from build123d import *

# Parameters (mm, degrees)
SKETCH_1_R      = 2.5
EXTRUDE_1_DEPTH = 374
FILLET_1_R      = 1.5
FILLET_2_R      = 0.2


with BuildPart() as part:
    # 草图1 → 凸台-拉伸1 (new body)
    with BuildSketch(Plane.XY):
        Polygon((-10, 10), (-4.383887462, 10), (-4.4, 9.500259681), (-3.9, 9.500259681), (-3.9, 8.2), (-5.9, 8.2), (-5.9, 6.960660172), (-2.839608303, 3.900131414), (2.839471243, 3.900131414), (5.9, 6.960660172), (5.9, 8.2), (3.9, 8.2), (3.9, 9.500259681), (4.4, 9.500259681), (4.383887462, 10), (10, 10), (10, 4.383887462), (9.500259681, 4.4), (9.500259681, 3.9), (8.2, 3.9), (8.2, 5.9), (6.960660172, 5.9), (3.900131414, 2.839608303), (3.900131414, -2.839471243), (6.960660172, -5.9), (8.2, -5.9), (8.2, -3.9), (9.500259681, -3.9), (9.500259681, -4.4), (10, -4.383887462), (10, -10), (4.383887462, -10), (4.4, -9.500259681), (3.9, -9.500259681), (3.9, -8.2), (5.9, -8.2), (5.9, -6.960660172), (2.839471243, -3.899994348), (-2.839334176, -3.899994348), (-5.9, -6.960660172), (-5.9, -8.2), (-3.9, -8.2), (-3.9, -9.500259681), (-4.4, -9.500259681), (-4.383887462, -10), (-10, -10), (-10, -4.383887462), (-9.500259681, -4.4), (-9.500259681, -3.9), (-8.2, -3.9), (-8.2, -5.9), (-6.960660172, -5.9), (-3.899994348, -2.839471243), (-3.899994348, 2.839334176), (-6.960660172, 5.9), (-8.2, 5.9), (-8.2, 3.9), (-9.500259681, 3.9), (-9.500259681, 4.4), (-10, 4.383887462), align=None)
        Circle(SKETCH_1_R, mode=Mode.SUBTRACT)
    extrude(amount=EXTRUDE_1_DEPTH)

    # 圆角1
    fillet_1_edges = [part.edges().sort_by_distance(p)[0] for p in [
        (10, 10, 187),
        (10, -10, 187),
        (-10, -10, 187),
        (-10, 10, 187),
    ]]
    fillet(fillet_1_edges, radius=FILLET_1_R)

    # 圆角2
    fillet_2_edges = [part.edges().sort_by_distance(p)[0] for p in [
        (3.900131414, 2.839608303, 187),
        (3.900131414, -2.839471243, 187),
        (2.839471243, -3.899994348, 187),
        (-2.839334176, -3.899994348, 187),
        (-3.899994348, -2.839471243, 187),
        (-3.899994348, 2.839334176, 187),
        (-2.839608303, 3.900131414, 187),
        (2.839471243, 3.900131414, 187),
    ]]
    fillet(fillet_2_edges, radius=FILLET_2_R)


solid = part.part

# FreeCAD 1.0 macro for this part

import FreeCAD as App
import Part
import Sketcher
Q = App.Units.Quantity


def edges_at(feature, points):
    """Names of the edges that pass closest to the given points."""
    edges = feature.Shape.Edges
    near = lambda p: min(range(len(edges)), key=lambda i: edges[i].distToShape(Part.Vertex(*p))[0])
    return sorted({f"Edge{near(p) + 1}" for p in points})


def add_polygon(sketch, points):
    """Adds a closed chain of lines whose ends are joined by coincident constraints."""
    first, n = sketch.GeometryCount, len(points)
    for a, b in zip(points, points[1:] + points[:1]):
        sketch.addGeometry(Part.LineSegment(App.Vector(*a, 0), App.Vector(*b, 0)), False)
    for i in range(n):
        sketch.addConstraint(Sketcher.Constraint("Coincident", first + i, 2, first + (i + 1) % n, 1))

doc = App.newDocument("Part")
body = doc.addObject("PartDesign::Body", "Body")

# Sketch on XY plane
sketch1 = doc.addObject("Sketcher::SketchObject", "Sketch")
body.addObject(sketch1)
sketch1.AttachmentSupport = (doc.XY_Plane, [""])
sketch1.MapMode = "FlatFace"
add_polygon(sketch1, [(-4.383887, 10), (-10, 10), (-10, 4.383887), (-9.50026, 4.4), (-9.50026, 3.9), (-8.2, 3.9), (-8.2, 5.9), (-6.96066, 5.9), (-3.899994, 2.839334), (-3.899994, -2.839471), (-6.96066, -5.9), (-8.2, -5.9), (-8.2, -3.9), (-9.50026, -3.9), (-9.50026, -4.4), (-10, -4.383887), (-10, -10), (-4.383887, -10), (-4.4, -9.50026), (-3.9, -9.50026), (-3.9, -8.2), (-5.9, -8.2), (-5.9, -6.96066), (-2.839334, -3.899994), (2.839471, -3.899994), (5.9, -6.96066), (5.9, -8.2), (3.9, -8.2), (3.9, -9.50026), (4.4, -9.50026), (4.383887, -10), (10, -10), (10, -4.383887), (9.50026, -4.4), (9.50026, -3.9), (8.2, -3.9), (8.2, -5.9), (6.96066, -5.9), (3.900131, -2.839471), (3.900131, 2.839608), (6.96066, 5.9), (8.2, 5.9), (8.2, 3.9), (9.50026, 3.9), (9.50026, 4.4), (10, 4.383887), (10, 10), (4.383887, 10), (4.4, 9.50026), (3.9, 9.50026), (3.9, 8.2), (5.9, 8.2), (5.9, 6.96066), (2.839471, 3.900131), (-2.839608, 3.900131), (-5.9, 6.96066), (-5.9, 8.2), (-3.9, 8.2), (-3.9, 9.50026), (-4.4, 9.50026)])  # lines 0-59
sketch1.addGeometry(Part.Circle(App.Vector(0, 0, 0), App.Vector(0, 0, 1), 2.5), False)  # 60
sketch1.addConstraint([
    Sketcher.Constraint("Horizontal", 0),
    Sketcher.Constraint("Vertical", 1),
    Sketcher.Constraint("Vertical", 3),
    Sketcher.Constraint("Horizontal", 4),
    Sketcher.Constraint("Vertical", 5),
    Sketcher.Constraint("Horizontal", 6),
    Sketcher.Constraint("Vertical", 8),
    Sketcher.Constraint("Horizontal", 10),
    Sketcher.Constraint("Vertical", 11),
    Sketcher.Constraint("Horizontal", 12),
    Sketcher.Constraint("Vertical", 13),
    Sketcher.Constraint("Vertical", 15),
    Sketcher.Constraint("Horizontal", 16),
    Sketcher.Constraint("Horizontal", 18),
    Sketcher.Constraint("Vertical", 19),
    Sketcher.Constraint("Horizontal", 20),
    Sketcher.Constraint("Vertical", 21),
    Sketcher.Constraint("Horizontal", 23),
    Sketcher.Constraint("Vertical", 25),
    Sketcher.Constraint("Horizontal", 26),
    Sketcher.Constraint("Vertical", 27),
    Sketcher.Constraint("Horizontal", 28),
    Sketcher.Constraint("Horizontal", 30),
    Sketcher.Constraint("Vertical", 31),
    Sketcher.Constraint("Vertical", 33),
    Sketcher.Constraint("Horizontal", 34),
    Sketcher.Constraint("Vertical", 35),
    Sketcher.Constraint("Horizontal", 36),
    Sketcher.Constraint("Vertical", 38),
    Sketcher.Constraint("Horizontal", 40),
    Sketcher.Constraint("Vertical", 41),
    Sketcher.Constraint("Horizontal", 42),
    Sketcher.Constraint("Vertical", 43),
    Sketcher.Constraint("Vertical", 45),
    Sketcher.Constraint("Horizontal", 46),
    Sketcher.Constraint("Horizontal", 48),
    Sketcher.Constraint("Vertical", 49),
    Sketcher.Constraint("Horizontal", 50),
    Sketcher.Constraint("Vertical", 51),
    Sketcher.Constraint("Horizontal", 53),
    Sketcher.Constraint("Vertical", 55),
    Sketcher.Constraint("Horizontal", 56),
    Sketcher.Constraint("Vertical", 57),
    Sketcher.Constraint("Horizontal", 58),
    Sketcher.Constraint("Coincident", 60, 3, -1, 1),
    Sketcher.Constraint("Symmetric", 0, 2, 30, 2, -1, 1),
    Sketcher.Constraint("Symmetric", 2, 2, 32, 2, -1, 1),
    Sketcher.Constraint("Symmetric", 4, 2, 34, 2, -1, 1),
    Sketcher.Constraint("Symmetric", 6, 2, 36, 2, -1, 1),
    Sketcher.Constraint("Symmetric", 9, 2, 39, 2, -1, 1),
    Sketcher.Constraint("Symmetric", 11, 2, 41, 2, -1, 1),
    Sketcher.Constraint("Symmetric", 13, 2, 43, 2, -1, 1),
    Sketcher.Constraint("Symmetric", 14, 2, 44, 2, -1, 1),
    Sketcher.Constraint("Symmetric", 16, 2, 46, 2, -1, 1),
    Sketcher.Constraint("Symmetric", 17, 2, 47, 2, -1, 1),
    Sketcher.Constraint("Symmetric", 19, 2, 49, 2, -1, 1),
    Sketcher.Constraint("Symmetric", 21, 2, 51, 2, -1, 1),
    Sketcher.Constraint("Symmetric", 24, 2, 54, 2, -1, 1),
    Sketcher.Constraint("Symmetric", 26, 2, 56, 2, -1, 1),
    Sketcher.Constraint("Symmetric", 28, 2, 58, 2, -1, 1),
    Sketcher.Constraint("Symmetric", 21, 2, 24, 2, -2),
    Sketcher.Constraint("Symmetric", 19, 2, 26, 2, -2),
    Sketcher.Constraint("Symmetric", 17, 2, 28, 2, -2),
    Sketcher.Constraint("Symmetric", 16, 2, 29, 2, -2),
    Sketcher.Constraint("Symmetric", 14, 2, 31, 2, -2),
    Sketcher.Constraint("Symmetric", 13, 2, 32, 2, -2),
    Sketcher.Constraint("Symmetric", 11, 2, 34, 2, -2),
    Sketcher.Constraint("Symmetric", 9, 2, 36, 2, -2),
    Sketcher.Constraint("Perpendicular", 2, 17),
    Sketcher.Constraint("Perpendicular", 7, 22),
    Sketcher.Constraint("Perpendicular", 9, 24),
    Sketcher.Constraint("Perpendicular", 14, 29),
    Sketcher.Constraint("Perpendicular", 22, 37),
    Sketcher.Constraint("Perpendicular", 24, 39),
    Sketcher.Constraint("Perpendicular", 37, 52),
    Sketcher.Constraint("Perpendicular", 39, 54),
    Sketcher.Constraint("Perpendicular", 44, 59),
    Sketcher.Constraint("Horizontal", 8, 2, 37, 2),
    Sketcher.Constraint("Vertical", 23, 2, 52, 2),
    Sketcher.Constraint("Equal", 46, 1),
    Sketcher.Constraint("Equal", 58, 3),
    Sketcher.Constraint("Equal", 56, 5),
    Sketcher.Constraint("Equal", 23, 8),
    Sketcher.Constraint("Equal", 42, 19),
    Sketcher.Constraint("Equal", 40, 21),
    Sketcher.Constraint("Equal", 14, 17),
    Sketcher.Constraint("Equal", 7, 22),
    Sketcher.Constraint("Diameter", 60, 5.0),
    Sketcher.Constraint("DistanceX", 20, 2, 20, 1, 2.0),
    Sketcher.Constraint("Angle", 7, Q("-45 deg")),
    Sketcher.Constraint("DistanceX", 18, 1, 18, 2, 0.5),
    Sketcher.Constraint("DistanceX", 0, 2, -1, 1, 10.0),
    Sketcher.Constraint("Distance", 2, 0.5),
    Sketcher.Constraint("DistanceY", -1, 1, 2, 2, 4.4),
    Sketcher.Constraint("DistanceX", 4, 2, -1, 1, 8.2),
    Sketcher.Constraint("DistanceX", 4, 1, 4, 2, 1.30026),
    Sketcher.Constraint("DistanceX", 6, 1, 6, 2, 1.23934),
    Sketcher.Constraint("DistanceX", 53, 2, 53, 1, 5.67908),
    Sketcher.Constraint("Distance", 9, 4.328338),
])
pad1 = doc.addObject("PartDesign::Pad", "Pad")
body.addObject(pad1)
pad1.Profile = sketch1
pad1.Length = 374
doc.recompute()

fillet = doc.addObject("PartDesign::Fillet", "Fillet")
body.addObject(fillet)
fillet.Base = (pad1, edges_at(pad1, [
    (10, 10, 187),
    (10, -10, 187),
    (-10, -10, 187),
    (-10, 10, 187),
]))
fillet.Radius = 1.5
doc.recompute()

fillet2 = doc.addObject("PartDesign::Fillet", "Fillet001")
body.addObject(fillet2)
fillet2.Base = (fillet, edges_at(fillet, [
    (3.9, 2.84, 187),
    (3.9, -2.839, 187),
    (2.839, -3.9, 187),
    (-2.839, -3.9, 187),
    (-3.9, -2.839, 187),
    (-3.9, 2.839, 187),
    (-2.84, 3.9, 187),
    (2.839, 3.9, 187),
]))
fillet2.Radius = 0.2

doc.recompute()
